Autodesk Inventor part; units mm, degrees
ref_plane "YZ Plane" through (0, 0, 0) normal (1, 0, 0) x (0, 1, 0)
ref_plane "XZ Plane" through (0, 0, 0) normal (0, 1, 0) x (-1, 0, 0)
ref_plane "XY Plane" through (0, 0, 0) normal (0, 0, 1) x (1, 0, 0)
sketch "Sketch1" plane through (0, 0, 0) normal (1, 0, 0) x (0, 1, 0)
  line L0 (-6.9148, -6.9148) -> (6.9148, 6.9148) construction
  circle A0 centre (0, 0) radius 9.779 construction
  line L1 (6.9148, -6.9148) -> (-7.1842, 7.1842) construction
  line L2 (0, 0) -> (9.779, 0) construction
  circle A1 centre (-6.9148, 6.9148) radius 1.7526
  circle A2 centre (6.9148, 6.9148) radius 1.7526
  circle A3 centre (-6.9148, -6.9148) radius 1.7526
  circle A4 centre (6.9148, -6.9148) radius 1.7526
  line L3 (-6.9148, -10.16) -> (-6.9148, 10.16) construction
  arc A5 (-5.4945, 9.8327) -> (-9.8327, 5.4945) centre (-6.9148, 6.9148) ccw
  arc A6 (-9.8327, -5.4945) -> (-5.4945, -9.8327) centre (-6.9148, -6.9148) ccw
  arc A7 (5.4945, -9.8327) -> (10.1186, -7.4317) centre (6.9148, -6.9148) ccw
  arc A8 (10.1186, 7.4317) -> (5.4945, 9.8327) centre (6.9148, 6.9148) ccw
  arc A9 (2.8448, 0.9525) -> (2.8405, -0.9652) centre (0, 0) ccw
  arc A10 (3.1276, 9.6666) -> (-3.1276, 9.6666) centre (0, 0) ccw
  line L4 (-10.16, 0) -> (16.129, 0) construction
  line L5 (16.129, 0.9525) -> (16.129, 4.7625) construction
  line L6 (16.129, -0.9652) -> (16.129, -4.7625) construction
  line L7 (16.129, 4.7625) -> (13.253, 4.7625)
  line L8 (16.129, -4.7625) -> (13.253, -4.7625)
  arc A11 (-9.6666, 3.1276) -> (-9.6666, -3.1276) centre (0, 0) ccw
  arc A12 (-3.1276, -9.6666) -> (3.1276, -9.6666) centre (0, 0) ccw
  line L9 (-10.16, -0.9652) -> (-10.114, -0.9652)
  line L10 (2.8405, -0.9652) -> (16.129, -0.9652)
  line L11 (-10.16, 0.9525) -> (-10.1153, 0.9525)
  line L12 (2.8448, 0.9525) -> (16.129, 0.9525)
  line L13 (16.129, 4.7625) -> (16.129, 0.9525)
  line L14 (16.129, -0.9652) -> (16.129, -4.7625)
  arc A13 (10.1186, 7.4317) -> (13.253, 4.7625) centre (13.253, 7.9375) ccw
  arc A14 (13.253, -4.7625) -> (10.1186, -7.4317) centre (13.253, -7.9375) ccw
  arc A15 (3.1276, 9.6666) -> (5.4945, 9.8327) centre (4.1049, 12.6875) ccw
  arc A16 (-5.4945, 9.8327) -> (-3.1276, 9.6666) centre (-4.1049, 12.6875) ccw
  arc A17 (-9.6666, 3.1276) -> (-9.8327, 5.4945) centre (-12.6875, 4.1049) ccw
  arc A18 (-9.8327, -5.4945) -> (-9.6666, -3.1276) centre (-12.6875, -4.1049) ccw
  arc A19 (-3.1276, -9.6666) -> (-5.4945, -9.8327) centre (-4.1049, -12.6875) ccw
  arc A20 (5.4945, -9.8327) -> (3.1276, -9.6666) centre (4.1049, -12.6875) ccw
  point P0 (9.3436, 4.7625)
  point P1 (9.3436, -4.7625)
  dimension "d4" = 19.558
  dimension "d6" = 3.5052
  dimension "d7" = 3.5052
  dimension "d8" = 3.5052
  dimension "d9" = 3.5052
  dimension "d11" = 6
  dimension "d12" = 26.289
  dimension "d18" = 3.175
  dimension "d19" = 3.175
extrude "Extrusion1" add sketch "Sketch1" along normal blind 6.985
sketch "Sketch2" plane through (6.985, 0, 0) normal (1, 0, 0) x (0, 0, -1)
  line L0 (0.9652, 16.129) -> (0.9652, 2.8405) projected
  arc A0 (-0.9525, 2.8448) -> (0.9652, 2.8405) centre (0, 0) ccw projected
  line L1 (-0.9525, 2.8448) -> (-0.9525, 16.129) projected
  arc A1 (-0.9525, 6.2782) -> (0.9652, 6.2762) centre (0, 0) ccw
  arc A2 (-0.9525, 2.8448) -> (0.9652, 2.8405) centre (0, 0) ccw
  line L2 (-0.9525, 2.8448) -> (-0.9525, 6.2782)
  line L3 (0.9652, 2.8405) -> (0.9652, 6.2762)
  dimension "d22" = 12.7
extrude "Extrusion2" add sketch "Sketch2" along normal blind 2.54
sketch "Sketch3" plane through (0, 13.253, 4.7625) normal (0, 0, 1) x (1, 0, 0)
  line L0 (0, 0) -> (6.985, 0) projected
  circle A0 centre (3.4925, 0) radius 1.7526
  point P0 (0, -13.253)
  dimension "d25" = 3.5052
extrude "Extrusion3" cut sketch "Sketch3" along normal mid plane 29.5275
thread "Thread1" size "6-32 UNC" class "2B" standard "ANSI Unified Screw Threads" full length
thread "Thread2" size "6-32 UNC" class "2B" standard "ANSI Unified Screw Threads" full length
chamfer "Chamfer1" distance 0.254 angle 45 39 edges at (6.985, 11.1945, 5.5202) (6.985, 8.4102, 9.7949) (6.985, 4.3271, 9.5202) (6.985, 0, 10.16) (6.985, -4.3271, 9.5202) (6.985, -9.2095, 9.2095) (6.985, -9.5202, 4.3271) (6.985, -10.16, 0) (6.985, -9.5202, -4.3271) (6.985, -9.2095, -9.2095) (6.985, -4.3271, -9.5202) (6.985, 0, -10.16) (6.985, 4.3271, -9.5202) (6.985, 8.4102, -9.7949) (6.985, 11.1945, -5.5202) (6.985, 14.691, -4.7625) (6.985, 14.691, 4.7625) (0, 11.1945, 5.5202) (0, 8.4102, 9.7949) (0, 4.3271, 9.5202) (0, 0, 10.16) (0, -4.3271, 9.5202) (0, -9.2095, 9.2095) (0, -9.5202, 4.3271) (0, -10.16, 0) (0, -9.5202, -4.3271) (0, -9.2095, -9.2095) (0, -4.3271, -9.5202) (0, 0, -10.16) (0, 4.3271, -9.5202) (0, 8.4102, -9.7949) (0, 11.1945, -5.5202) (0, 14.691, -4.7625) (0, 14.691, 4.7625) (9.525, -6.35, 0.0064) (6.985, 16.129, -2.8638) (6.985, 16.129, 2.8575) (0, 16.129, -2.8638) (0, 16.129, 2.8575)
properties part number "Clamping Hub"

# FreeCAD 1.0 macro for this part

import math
import FreeCAD as App
import Part
import Sketcher
from FreeCAD import Vector
Q = App.Units.Quantity


def edges_at(feature, points):
    """Names of the edges that pass closest to the given points."""
    edges = feature.Shape.Edges
    near = lambda p: min(range(len(edges)), key=lambda i: edges[i].distToShape(Part.Vertex(*p))[0])
    return sorted({f"Edge{near(p) + 1}" for p in points})

doc = App.newDocument("Part")
body = doc.addObject("PartDesign::Body", "Body")

sketch1 = body.newObject("Sketcher::SketchObject", "Sketch")
sketch1.AttachmentSupport = (doc.getObject("YZ_Plane"), [""])
sketch1.MapMode = "FlatFace"
sketch1.addGeometry([
    Part.ArcOfCircle(Part.Circle(Vector(-4.1, 12.7, 0), Vector(0, 0, 1), 3.2), math.radians(-116), math.radians(-72)),
    Part.ArcOfCircle(Part.Circle(Vector(-6.9, 6.9, 0), Vector(0, 0, 1), 3.2), math.radians(64), math.radians(206)),
    Part.ArcOfCircle(Part.Circle(Vector(-12.7, 4.1, 0), Vector(0, 0, 1), 3.2), math.radians(-18), math.radians(26)),
    Part.ArcOfCircle(Part.Circle(Vector(0, 0, 0), Vector(0, 0, 1), 10.2), math.radians(162), math.radians(198)),
    Part.ArcOfCircle(Part.Circle(Vector(-12.7, -4.1, 0), Vector(0, 0, 1), 3.2), math.radians(-26), math.radians(18)),
    Part.ArcOfCircle(Part.Circle(Vector(-6.9, -6.9, 0), Vector(0, 0, 1), 3.2), math.radians(154), math.radians(296)),
    Part.ArcOfCircle(Part.Circle(Vector(-4.1, -12.7, 0), Vector(0, 0, 1), 3.2), math.radians(72), math.radians(116)),
    Part.ArcOfCircle(Part.Circle(Vector(0, 0, 0), Vector(0, 0, 1), 10.2), math.radians(-108), math.radians(-72)),
    Part.ArcOfCircle(Part.Circle(Vector(4.1, -12.7, 0), Vector(0, 0, 1), 3.2), math.radians(64), math.radians(108)),
    Part.ArcOfCircle(Part.Circle(Vector(6.9, -6.9, 0), Vector(0, 0, 1), 3.2), math.radians(-116), math.radians(-9)),
    Part.ArcOfCircle(Part.Circle(Vector(13.3, -7.9, 0), Vector(0, 0, 1), 3.2), math.radians(90), math.radians(171)),
    Part.LineSegment(Vector(13.3, -4.8, 0), Vector(16.1, -4.8, 0)),
    Part.LineSegment(Vector(16.1, -4.8, 0), Vector(16.1, -1, 0)),
    Part.LineSegment(Vector(16.1, -1, 0), Vector(2.8, -1, 0)),
    Part.ArcOfCircle(Part.Circle(Vector(0, 0, 0), Vector(0, 0, 1), 3), math.radians(19), math.radians(341)),
    Part.LineSegment(Vector(2.8, 1, 0), Vector(16.1, 1, 0)),
    Part.LineSegment(Vector(16.1, 1, 0), Vector(16.1, 4.8, 0)),
    Part.LineSegment(Vector(16.1, 4.8, 0), Vector(13.3, 4.8, 0)),
    Part.ArcOfCircle(Part.Circle(Vector(13.3, 7.9, 0), Vector(0, 0, 1), 3.2), math.radians(-171), math.radians(-90)),
    Part.ArcOfCircle(Part.Circle(Vector(6.9, 6.9, 0), Vector(0, 0, 1), 3.2), math.radians(9), math.radians(116)),
    Part.ArcOfCircle(Part.Circle(Vector(4.1, 12.7, 0), Vector(0, 0, 1), 3.2), math.radians(-108), math.radians(-64)),
    Part.ArcOfCircle(Part.Circle(Vector(0, 0, 0), Vector(0, 0, 1), 10.2), math.radians(72), math.radians(108)),
    Part.Circle(Vector(-6.9, -6.9, 0), Vector(0, 0, 1), 1.8),
    Part.Circle(Vector(6.9, -6.9, 0), Vector(0, 0, 1), 1.8),
    Part.Circle(Vector(-6.9, 6.9, 0), Vector(0, 0, 1), 1.8),
    Part.Circle(Vector(6.9, 6.9, 0), Vector(0, 0, 1), 1.8),
], False)
sketch1.addConstraint([
    Sketcher.Constraint("Tangent", 0, 1, 1, 1),
    Sketcher.Constraint("Tangent", 1, 2, 2, 2),
    Sketcher.Constraint("Tangent", 2, 1, 3, 1),
    Sketcher.Constraint("Tangent", 3, 2, 4, 2),
    Sketcher.Constraint("Tangent", 4, 1, 5, 1),
    Sketcher.Constraint("Tangent", 5, 2, 6, 2),
    Sketcher.Constraint("Tangent", 6, 1, 7, 1),
    Sketcher.Constraint("Tangent", 7, 2, 8, 2),
    Sketcher.Constraint("Tangent", 8, 1, 9, 1),
    Sketcher.Constraint("Tangent", 9, 2, 10, 2),
    Sketcher.Constraint("Tangent", 10, 1, 11, 1),
    Sketcher.Constraint("Coincident", 11, 2, 12, 1),
    Sketcher.Constraint("Coincident", 12, 2, 13, 1),
    Sketcher.Constraint("Coincident", 13, 2, 14, 2),
    Sketcher.Constraint("Coincident", 14, 1, 15, 1),
    Sketcher.Constraint("Coincident", 15, 2, 16, 1),
    Sketcher.Constraint("Coincident", 16, 2, 17, 1),
    Sketcher.Constraint("Tangent", 17, 2, 18, 2),
    Sketcher.Constraint("Tangent", 18, 1, 19, 1),
    Sketcher.Constraint("Tangent", 19, 2, 20, 2),
    Sketcher.Constraint("Tangent", 20, 1, 21, 1),
    Sketcher.Constraint("Tangent", 21, 2, 0, 2),
    Sketcher.Constraint("Horizontal", 11),
    Sketcher.Constraint("Vertical", 12),
    Sketcher.Constraint("Horizontal", 13),
    Sketcher.Constraint("Horizontal", 15),
    Sketcher.Constraint("Vertical", 16),
    Sketcher.Constraint("Horizontal", 17),
    Sketcher.Constraint("Coincident", 3, 3, -1, 1),
    Sketcher.Constraint("Coincident", 7, 3, -1, 1),
    Sketcher.Constraint("Coincident", 14, 3, -1, 1),
    Sketcher.Constraint("Coincident", 21, 3, -1, 1),
    Sketcher.Constraint("Coincident", 22, 3, 5, 3),
    Sketcher.Constraint("Coincident", 23, 3, 9, 3),
    Sketcher.Constraint("Coincident", 24, 3, 1, 3),
    Sketcher.Constraint("Coincident", 25, 3, 19, 3),
    Sketcher.Constraint("Equal", 0, 2),
    Sketcher.Constraint("Equal", 2, 4),
    Sketcher.Constraint("Equal", 1, 5),
    Sketcher.Constraint("Equal", 4, 6),
    Sketcher.Constraint("Equal", 3, 7),
    Sketcher.Constraint("Equal", 6, 8),
    Sketcher.Constraint("Equal", 5, 9),
    Sketcher.Constraint("Equal", 8, 10),
    Sketcher.Constraint("Equal", 10, 18),
    Sketcher.Constraint("Equal", 9, 19),
    Sketcher.Constraint("Equal", 18, 20),
    Sketcher.Constraint("Equal", 7, 21),
    Sketcher.Constraint("Equal", 22, 23),
    Sketcher.Constraint("Equal", 23, 24),
    Sketcher.Constraint("Equal", 24, 25),
    Sketcher.Constraint("Symmetric", 1, 3, 9, 3, -1, 1),
    Sketcher.Constraint("Symmetric", 5, 3, 19, 3, -1, 1),
    Sketcher.Constraint("Symmetric", 5, 3, 9, 3, -2),
    Sketcher.Constraint("Symmetric", 11, 2, 16, 2, -1),
    Sketcher.Constraint("Diameter", 22, Q("0.138 in")),
    Sketcher.Constraint("Radius", 0, Q("0.125 in")),
    Sketcher.Constraint("Radius", 3, Q("0.4 in")),
    Sketcher.Constraint("Radius", 14, Q("0.1181 in")),
    Sketcher.Constraint("DistanceY", 16, 1, 16, 2, Q("0.15 in")),
    Sketcher.Constraint("DistanceX", 15, 1, 15, 2, Q("0.523 in")),
    Sketcher.Constraint("Radius", 1, 3.2452),
    Sketcher.Constraint("DistanceY", 10, 3, 15, 2, Q("0.35 in")),
    Sketcher.Constraint("DistanceY", 12, 1, 12, 2, Q("0.1495 in")),
    Sketcher.Constraint("DistanceY", 8, 3, 10, 3, Q("0.187 in")),
    Sketcher.Constraint("DistanceY", 7, 2, 9, 2, Q("0.088 in")),
])
pad1 = body.newObject("PartDesign::Pad", "Pad")
pad1.Profile = sketch1
pad1.Length = Q("0.275 in")

sketch2 = body.newObject("Sketcher::SketchObject", "Sketch001")
sketch2.AttachmentSupport = (doc.getObject("YZ_Plane"), [""])
sketch2.MapMode = "FlatFace"
sketch2.AttachmentOffset = App.Placement(Vector(0, 0, 0.275 * 25.4), App.Rotation())
sketch2.addGeometry([
    Part.ArcOfCircle(Part.Circle(Vector(0, 0, 0), Vector(0, 0, 1), 6.4), math.radians(9), math.radians(351)),
    Part.LineSegment(Vector(6.3, -1, 0), Vector(2.8, -1, 0)),
    Part.ArcOfCircle(Part.Circle(Vector(0, 0, 0), Vector(0, 0, 1), 3), math.radians(19), math.radians(341)),
    Part.LineSegment(Vector(2.8, 1, 0), Vector(6.3, 1, 0)),
], False)
sketch2.addConstraint([
    Sketcher.Constraint("Coincident", 0, 2, 1, 1),
    Sketcher.Constraint("Coincident", 1, 2, 2, 2),
    Sketcher.Constraint("Coincident", 2, 1, 3, 1),
    Sketcher.Constraint("Coincident", 3, 2, 0, 1),
    Sketcher.Constraint("Horizontal", 1),
    Sketcher.Constraint("Horizontal", 3),
    Sketcher.Constraint("Coincident", 0, 3, -1, 1),
    Sketcher.Constraint("Coincident", 2, 3, -1, 1),
    Sketcher.Constraint("Radius", 0, Q("0.25 in")),
    Sketcher.Constraint("Radius", 2, Q("0.1181 in")),
    Sketcher.Constraint("DistanceY", 0, 2, -1, 1, Q("0.038 in")),
    Sketcher.Constraint("DistanceX", -1, 1, 2, 1, Q("0.112 in")),
])
pad2 = body.newObject("PartDesign::Pad", "Pad001")
pad2.Profile = sketch2
pad2.Length = Q("0.1 in")

sketch3 = body.newObject("Sketcher::SketchObject", "Sketch002")
sketch3.AttachmentSupport = (doc.getObject("XY_Plane"), [""])
sketch3.MapMode = "FlatFace"
sketch3.AttachmentOffset = App.Placement(Vector(0, 0, 0.1875 * 25.4), App.Rotation())
sketch3.addGeometry(Part.Circle(Vector(3.5, 13.3, 0), Vector(0, 0, 1), 1.8), False)
sketch3.addConstraint([
    Sketcher.Constraint("Diameter", 0, Q("0.138 in")),
    Sketcher.Constraint("DistanceX", -1, 1, 0, 3, Q("0.1375 in")),
    Sketcher.Constraint("DistanceY", -1, 1, 0, 3, 13.253),
])
pocket1 = body.newObject("PartDesign::Pocket", "Pocket")
pocket1.Profile = sketch3
pocket1.Length = Q("1.1625 in")
pocket1.Midplane = True
doc.recompute()

chamfer = body.newObject("PartDesign::Chamfer", "Chamfer")
chamfer.Base = (pocket1, edges_at(pocket1, [
    (6.985, 11.194, 5.52),
    (6.985, 8.41, 9.795),
    (6.985, 4.327, 9.52),
    (6.985, 0, 10.16),
    (6.985, -4.327, 9.52),
    (6.985, -9.21, 9.21),
    (6.985, -9.52, 4.327),
    (6.985, -10.16, 0),
    (6.985, -9.52, -4.327),
    (6.985, -9.21, -9.21),
    (6.985, -4.327, -9.52),
    (6.985, 0, -10.16),
    (6.985, 4.327, -9.52),
    (6.985, 8.41, -9.795),
    (6.985, 11.194, -5.52),
    (6.985, 14.691, -4.763),
    (6.985, 14.691, 4.763),
    (0, 11.194, 5.52),
    (0, 8.41, 9.795),
    (0, 4.327, 9.52),
    (0, 0, 10.16),
    (0, -4.327, 9.52),
    (0, -9.21, 9.21),
    (0, -9.52, 4.327),
    (0, -10.16, 0),
    (0, -9.52, -4.327),
    (0, -9.21, -9.21),
    (0, -4.327, -9.52),
    (0, 0, -10.16),
    (0, 4.327, -9.52),
    (0, 8.41, -9.795),
    (0, 11.194, -5.52),
    (0, 14.691, -4.763),
    (0, 14.691, 4.763),
    (9.525, -6.35, 0.006),
    (6.985, 16.129, -2.864),
    (6.985, 16.129, 2.857),
    (0, 16.129, -2.864),
    (0, 16.129, 2.857),
]))
chamfer.Size = Q("0.01 in")

doc.recompute()
